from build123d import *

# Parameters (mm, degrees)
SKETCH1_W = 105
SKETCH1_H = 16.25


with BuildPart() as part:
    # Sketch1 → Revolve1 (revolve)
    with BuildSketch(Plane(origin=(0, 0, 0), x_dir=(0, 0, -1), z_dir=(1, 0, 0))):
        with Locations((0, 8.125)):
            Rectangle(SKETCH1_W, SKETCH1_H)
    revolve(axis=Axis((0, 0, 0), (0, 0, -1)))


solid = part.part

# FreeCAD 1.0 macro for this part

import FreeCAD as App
import Part
import Sketcher

V = App.Vector
Q = App.Units.Quantity


def add_polygon(sketch, points):
    """Adds a closed chain of lines whose ends are joined by coincident constraints."""
    first, n = sketch.GeometryCount, len(points)
    for a, b in zip(points, points[1:] + points[:1]):
        sketch.addGeometry(Part.LineSegment(App.Vector(*a, 0), App.Vector(*b, 0)), False)
    for i in range(n):
        sketch.addConstraint(Sketcher.Constraint("Coincident", first + i, 2, first + (i + 1) % n, 1))

doc = App.newDocument("Part")
params = doc.addObject("Spreadsheet::Sheet", "Params")
for row, (alias, value) in enumerate([
    ("sketch1_height", "105 mm"),
    ("sketch1_width", "16.25 mm"),
    ("revolution_angle", "360 deg"),
], start=1):
    params.set(f"A{row}", alias)
    params.set(f"B{row}", "=" + value)
    params.setAlias(f"B{row}", alias)

body = doc.addObject("PartDesign::Body", "Body")

sketch1 = doc.addObject("Sketcher::SketchObject", "Sketch")
body.addObject(sketch1)
sketch1.AttachmentSupport = (doc.YZ_Plane, [""])
sketch1.MapMode = "FlatFace"
add_polygon(sketch1, [(16.25, 52.5), (0, 52.5), (0, -52.5), (16.25, -52.5)])
sketch1.addConstraint(Sketcher.Constraint("Horizontal", 0))
sketch1.addConstraint(Sketcher.Constraint("Vertical", 1))
sketch1.addConstraint(Sketcher.Constraint("Horizontal", 2))
sketch1.addConstraint(Sketcher.Constraint("Vertical", 3))
sketch1.addConstraint(Sketcher.Constraint("Symmetric", 0, 2, 1, 2, -1, 1))
sketch1.addConstraint(Sketcher.Constraint("DistanceY", 1, 2, 1, 1, Q("105 mm")))
sketch1.addConstraint(Sketcher.Constraint("DistanceX", 0, 2, 0, 1, Q("16.25 mm")))
sketch1.setExpression("Constraints[9]", "Params.sketch1_height")
sketch1.setExpression("Constraints[10]", "Params.sketch1_width")
revolution = doc.addObject("PartDesign::Revolution", "Revolution")
body.addObject(revolution)
revolution.Profile = sketch1
revolution.ReferenceAxis = (sketch1, ["V_Axis"])
revolution.setExpression("Angle", "Params.revolution_angle")

doc.recompute()
